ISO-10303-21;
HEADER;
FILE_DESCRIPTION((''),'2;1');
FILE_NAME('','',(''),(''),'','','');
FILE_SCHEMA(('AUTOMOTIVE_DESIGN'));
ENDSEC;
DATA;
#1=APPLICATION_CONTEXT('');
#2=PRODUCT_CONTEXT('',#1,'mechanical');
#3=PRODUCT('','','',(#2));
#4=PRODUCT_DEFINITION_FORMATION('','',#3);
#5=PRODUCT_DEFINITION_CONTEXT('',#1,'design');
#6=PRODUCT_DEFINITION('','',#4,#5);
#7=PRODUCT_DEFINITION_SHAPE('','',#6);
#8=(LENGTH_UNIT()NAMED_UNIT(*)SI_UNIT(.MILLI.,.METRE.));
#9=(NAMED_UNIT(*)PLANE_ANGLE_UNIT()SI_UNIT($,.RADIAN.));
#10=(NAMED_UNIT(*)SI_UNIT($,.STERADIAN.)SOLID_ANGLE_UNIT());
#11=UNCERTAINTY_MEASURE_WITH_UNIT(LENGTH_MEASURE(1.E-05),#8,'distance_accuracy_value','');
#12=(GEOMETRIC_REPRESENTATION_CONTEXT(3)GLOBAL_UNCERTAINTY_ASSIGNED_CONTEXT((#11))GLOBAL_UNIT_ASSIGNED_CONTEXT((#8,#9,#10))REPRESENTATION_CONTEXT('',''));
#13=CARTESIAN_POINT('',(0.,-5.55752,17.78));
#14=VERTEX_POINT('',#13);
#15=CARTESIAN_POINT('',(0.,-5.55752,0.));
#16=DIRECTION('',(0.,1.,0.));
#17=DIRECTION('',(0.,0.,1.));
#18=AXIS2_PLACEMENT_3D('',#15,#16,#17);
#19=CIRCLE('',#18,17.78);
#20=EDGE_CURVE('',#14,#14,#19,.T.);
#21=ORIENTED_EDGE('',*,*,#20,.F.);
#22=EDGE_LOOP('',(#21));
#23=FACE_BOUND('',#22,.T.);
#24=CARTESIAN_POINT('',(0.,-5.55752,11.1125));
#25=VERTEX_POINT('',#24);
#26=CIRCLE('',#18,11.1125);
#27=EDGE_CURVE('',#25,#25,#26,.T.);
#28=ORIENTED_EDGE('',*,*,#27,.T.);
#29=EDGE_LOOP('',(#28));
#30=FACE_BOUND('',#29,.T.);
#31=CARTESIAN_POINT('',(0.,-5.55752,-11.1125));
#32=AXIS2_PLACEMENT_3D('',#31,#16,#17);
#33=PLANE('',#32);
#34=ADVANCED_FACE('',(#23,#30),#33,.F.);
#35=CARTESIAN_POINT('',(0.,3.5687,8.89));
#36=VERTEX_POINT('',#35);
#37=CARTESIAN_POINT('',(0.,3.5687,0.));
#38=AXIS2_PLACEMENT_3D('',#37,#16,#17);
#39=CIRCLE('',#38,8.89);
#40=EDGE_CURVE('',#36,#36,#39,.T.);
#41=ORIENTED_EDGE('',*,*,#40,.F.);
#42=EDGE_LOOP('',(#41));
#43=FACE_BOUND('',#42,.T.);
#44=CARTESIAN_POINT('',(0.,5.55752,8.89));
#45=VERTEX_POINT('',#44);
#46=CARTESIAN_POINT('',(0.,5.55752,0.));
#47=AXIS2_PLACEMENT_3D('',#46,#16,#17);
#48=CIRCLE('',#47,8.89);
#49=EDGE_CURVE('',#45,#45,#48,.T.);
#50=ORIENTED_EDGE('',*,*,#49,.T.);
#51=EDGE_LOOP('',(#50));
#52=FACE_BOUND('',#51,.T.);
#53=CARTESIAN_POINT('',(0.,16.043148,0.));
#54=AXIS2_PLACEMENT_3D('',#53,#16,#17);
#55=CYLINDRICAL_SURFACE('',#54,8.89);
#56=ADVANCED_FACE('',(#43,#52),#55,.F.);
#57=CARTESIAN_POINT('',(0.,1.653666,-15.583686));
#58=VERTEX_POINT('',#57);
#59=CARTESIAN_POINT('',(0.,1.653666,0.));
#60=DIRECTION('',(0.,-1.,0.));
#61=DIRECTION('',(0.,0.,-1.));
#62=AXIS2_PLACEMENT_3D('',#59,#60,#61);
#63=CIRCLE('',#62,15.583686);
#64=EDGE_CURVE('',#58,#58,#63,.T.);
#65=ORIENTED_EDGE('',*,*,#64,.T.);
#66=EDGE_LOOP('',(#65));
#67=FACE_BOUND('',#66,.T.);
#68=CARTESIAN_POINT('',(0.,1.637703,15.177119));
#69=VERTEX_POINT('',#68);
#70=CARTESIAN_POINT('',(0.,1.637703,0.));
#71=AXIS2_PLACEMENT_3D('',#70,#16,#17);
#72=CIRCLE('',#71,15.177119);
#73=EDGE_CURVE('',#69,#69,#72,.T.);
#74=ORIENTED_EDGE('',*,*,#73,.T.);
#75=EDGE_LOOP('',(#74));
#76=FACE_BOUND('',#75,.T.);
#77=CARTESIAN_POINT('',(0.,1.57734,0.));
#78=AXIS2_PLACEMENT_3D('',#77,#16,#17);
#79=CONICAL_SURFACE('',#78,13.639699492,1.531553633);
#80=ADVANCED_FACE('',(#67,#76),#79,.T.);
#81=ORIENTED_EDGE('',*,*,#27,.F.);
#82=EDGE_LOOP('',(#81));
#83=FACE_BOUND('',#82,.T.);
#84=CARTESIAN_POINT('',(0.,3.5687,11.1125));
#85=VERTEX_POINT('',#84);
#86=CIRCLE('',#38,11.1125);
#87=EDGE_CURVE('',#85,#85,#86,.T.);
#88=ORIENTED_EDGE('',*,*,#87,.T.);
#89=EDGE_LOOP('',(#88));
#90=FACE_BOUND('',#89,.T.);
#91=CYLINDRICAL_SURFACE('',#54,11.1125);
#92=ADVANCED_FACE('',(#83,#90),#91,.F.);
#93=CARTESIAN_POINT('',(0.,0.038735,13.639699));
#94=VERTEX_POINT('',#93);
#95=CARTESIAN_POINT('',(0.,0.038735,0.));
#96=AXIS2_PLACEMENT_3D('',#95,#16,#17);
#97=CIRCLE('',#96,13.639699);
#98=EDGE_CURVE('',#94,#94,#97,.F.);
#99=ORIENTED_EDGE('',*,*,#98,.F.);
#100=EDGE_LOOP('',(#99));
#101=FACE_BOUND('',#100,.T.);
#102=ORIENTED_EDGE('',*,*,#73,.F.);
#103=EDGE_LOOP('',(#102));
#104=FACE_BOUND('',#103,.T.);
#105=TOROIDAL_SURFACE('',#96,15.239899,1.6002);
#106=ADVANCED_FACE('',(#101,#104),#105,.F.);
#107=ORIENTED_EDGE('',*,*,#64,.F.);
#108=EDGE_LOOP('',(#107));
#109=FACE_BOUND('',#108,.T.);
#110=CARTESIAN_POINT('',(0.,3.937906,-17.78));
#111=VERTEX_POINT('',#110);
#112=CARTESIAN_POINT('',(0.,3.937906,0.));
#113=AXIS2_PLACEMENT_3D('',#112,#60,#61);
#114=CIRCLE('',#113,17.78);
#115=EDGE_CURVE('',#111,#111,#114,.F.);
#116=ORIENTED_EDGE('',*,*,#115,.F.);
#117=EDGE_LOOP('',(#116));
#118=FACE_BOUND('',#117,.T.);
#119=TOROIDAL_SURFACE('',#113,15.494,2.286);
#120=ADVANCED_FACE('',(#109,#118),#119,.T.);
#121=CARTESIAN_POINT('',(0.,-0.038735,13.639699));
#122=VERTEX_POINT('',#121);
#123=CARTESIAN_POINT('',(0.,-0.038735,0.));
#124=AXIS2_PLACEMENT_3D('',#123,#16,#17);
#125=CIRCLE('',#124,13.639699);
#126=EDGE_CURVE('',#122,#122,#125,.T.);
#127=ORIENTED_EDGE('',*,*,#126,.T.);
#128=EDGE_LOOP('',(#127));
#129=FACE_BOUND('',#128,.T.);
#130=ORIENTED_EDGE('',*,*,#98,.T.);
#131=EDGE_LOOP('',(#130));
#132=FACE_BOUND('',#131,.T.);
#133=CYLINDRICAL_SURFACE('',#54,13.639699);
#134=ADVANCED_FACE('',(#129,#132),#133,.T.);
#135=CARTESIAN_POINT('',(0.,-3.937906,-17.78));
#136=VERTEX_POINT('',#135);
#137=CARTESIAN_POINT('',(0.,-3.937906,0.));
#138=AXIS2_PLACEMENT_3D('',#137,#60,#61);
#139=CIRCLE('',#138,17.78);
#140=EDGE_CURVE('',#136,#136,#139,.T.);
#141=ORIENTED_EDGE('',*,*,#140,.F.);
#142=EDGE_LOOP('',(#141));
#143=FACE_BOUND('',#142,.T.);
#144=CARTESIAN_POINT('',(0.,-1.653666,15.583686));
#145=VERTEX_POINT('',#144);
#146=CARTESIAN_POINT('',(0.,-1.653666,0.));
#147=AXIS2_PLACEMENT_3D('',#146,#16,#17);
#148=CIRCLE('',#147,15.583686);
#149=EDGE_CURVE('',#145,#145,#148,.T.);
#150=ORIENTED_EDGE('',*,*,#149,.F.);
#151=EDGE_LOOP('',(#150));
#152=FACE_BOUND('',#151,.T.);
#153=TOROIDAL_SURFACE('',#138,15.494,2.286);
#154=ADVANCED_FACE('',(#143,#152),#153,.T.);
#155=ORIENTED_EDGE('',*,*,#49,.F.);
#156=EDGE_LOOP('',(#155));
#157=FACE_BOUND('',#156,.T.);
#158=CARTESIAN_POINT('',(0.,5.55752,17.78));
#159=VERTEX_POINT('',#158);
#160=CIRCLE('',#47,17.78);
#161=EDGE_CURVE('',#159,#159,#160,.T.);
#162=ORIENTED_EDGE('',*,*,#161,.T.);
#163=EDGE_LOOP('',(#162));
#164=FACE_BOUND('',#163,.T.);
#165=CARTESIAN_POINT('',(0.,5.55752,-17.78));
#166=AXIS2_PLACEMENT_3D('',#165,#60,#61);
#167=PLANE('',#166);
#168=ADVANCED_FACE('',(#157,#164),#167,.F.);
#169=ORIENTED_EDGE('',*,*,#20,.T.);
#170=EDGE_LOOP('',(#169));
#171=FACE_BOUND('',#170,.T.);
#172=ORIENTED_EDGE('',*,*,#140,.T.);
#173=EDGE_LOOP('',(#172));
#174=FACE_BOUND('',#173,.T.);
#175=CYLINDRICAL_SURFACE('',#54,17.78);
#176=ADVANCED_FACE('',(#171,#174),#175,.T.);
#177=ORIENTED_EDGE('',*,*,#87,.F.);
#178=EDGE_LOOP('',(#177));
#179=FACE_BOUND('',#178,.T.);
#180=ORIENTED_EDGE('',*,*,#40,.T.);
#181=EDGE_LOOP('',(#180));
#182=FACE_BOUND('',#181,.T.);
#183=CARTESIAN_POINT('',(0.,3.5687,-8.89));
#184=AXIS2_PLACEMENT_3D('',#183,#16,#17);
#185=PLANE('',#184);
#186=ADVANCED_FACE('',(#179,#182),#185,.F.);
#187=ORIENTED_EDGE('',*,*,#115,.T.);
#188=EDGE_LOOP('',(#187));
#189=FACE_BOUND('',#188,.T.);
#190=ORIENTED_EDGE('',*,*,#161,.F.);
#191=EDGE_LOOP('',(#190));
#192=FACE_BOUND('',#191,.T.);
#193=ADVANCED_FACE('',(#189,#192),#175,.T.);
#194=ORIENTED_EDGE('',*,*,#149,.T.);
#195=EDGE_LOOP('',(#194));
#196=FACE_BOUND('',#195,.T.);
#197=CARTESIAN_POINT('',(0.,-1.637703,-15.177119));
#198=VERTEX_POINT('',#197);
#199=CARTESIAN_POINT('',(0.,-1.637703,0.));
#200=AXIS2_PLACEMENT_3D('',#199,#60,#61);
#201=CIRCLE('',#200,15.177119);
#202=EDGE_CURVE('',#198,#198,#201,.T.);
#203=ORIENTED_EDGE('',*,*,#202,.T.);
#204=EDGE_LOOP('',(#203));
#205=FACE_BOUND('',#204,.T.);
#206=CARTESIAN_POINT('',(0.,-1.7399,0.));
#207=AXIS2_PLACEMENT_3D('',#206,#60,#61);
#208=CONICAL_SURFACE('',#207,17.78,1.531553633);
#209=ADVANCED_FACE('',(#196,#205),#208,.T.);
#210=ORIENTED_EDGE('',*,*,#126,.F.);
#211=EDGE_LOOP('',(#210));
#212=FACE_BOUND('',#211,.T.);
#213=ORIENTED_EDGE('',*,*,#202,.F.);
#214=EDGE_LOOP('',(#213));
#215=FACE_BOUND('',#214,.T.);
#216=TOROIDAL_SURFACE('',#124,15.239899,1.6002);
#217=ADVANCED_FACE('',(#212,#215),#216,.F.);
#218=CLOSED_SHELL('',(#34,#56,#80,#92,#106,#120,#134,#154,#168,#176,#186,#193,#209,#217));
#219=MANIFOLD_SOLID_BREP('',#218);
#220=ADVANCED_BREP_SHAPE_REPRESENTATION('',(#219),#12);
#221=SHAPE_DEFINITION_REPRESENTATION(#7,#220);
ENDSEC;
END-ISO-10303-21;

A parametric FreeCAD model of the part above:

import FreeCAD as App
import Part
import Sketcher
Q = App.Units.Quantity


def edges_at(feature, points):
    """Names of the edges that pass closest to the given points."""
    edges = feature.Shape.Edges
    near = lambda p: min(range(len(edges)), key=lambda i: edges[i].distToShape(Part.Vertex(*p))[0])
    return sorted({f"Edge{near(p) + 1}" for p in points})

doc = App.newDocument("Part")
body = doc.addObject("PartDesign::Body", "Body")

sketch1 = doc.addObject("Sketcher::SketchObject", "Sketch")
body.addObject(sketch1)
sketch1.AttachmentSupport = (doc.YZ_Plane, [""])
sketch1.MapMode = "FlatFace"
sketch1.addGeometry(Part.LineSegment(App.Vector(5.6, -8.9, 0), App.Vector(3.6, -8.9, 0)), False)
sketch1.addGeometry(Part.LineSegment(App.Vector(3.6, -8.9, 0), App.Vector(3.6, -11.1, 0)), False)
sketch1.addGeometry(Part.LineSegment(App.Vector(3.6, -11.1, 0), App.Vector(-5.6, -11.1, 0)), False)
sketch1.addGeometry(Part.LineSegment(App.Vector(-5.6, -11.1, 0), App.Vector(-5.6, -17.8, 0)), False)
sketch1.addGeometry(Part.LineSegment(App.Vector(-5.6, -17.8, 0), App.Vector(-1.7, -17.8, 0)), False)
sketch1.addGeometry(Part.LineSegment(App.Vector(-1.7, -17.8, 0), App.Vector(-1.6, -13.6, 0)), False)
sketch1.addGeometry(Part.LineSegment(App.Vector(-1.6, -13.6, 0), App.Vector(1.6, -13.6, 0)), False)
sketch1.addGeometry(Part.LineSegment(App.Vector(1.6, -13.6, 0), App.Vector(1.7, -17.8, 0)), False)
sketch1.addGeometry(Part.LineSegment(App.Vector(1.7, -17.8, 0), App.Vector(5.6, -17.8, 0)), False)
sketch1.addGeometry(Part.LineSegment(App.Vector(5.6, -17.8, 0), App.Vector(5.6, -8.9, 0)), False)
sketch1.addConstraint(Sketcher.Constraint("Coincident", 0, 2, 1, 1))
sketch1.addConstraint(Sketcher.Constraint("Coincident", 1, 2, 2, 1))
sketch1.addConstraint(Sketcher.Constraint("Coincident", 2, 2, 3, 1))
sketch1.addConstraint(Sketcher.Constraint("Coincident", 3, 2, 4, 1))
sketch1.addConstraint(Sketcher.Constraint("Coincident", 4, 2, 5, 1))
sketch1.addConstraint(Sketcher.Constraint("Coincident", 5, 2, 6, 1))
sketch1.addConstraint(Sketcher.Constraint("Coincident", 6, 2, 7, 1))
sketch1.addConstraint(Sketcher.Constraint("Coincident", 7, 2, 8, 1))
sketch1.addConstraint(Sketcher.Constraint("Coincident", 8, 2, 9, 1))
sketch1.addConstraint(Sketcher.Constraint("Coincident", 9, 2, 0, 1))
sketch1.addConstraint(Sketcher.Constraint("Horizontal", 0))
sketch1.addConstraint(Sketcher.Constraint("Vertical", 1))
sketch1.addConstraint(Sketcher.Constraint("Horizontal", 2))
sketch1.addConstraint(Sketcher.Constraint("Vertical", 3))
sketch1.addConstraint(Sketcher.Constraint("Horizontal", 4))
sketch1.addConstraint(Sketcher.Constraint("Horizontal", 6))
sketch1.addConstraint(Sketcher.Constraint("Horizontal", 8))
sketch1.addConstraint(Sketcher.Constraint("Vertical", 9))
sketch1.addConstraint(Sketcher.Constraint("Symmetric", 4, 2, 7, 2, -2))
sketch1.addConstraint(Sketcher.Constraint("Equal", 4, 8))
sketch1.addConstraint(Sketcher.Constraint("Equal", 5, 7))
sketch1.addConstraint(Sketcher.Constraint("DistanceY", 9, 1, 9, 2, Q("0.35 in")))
sketch1.addConstraint(Sketcher.Constraint("DistanceY", 3, 2, -1, 1, Q("0.7 in")))
sketch1.addConstraint(Sketcher.Constraint("DistanceX", 0, 2, 0, 1, Q("0.0783 in")))
sketch1.addConstraint(Sketcher.Constraint("DistanceX", 2, 2, 2, 1, Q("0.3593 in")))
sketch1.addConstraint(Sketcher.Constraint("DistanceX", 4, 1, 4, 2, Q("0.1503 in")))
sketch1.addConstraint(Sketcher.Constraint("DistanceX", 6, 1, 6, 2, Q("0.1242 in")))
sketch1.addConstraint(Sketcher.Constraint("DistanceY", 1, 2, 1, 1, Q("0.0875 in")))
sketch1.addConstraint(Sketcher.Constraint("DistanceY", 5, 2, -1, 1, Q("13.639699 mm")))
revolution = doc.addObject("PartDesign::Revolution", "Revolution")
body.addObject(revolution)
revolution.Profile = sketch1
revolution.ReferenceAxis = (sketch1, ["H_Axis"])
revolution.Angle = 360
doc.recompute()

fillet = doc.addObject("PartDesign::Fillet", "Fillet")
body.addObject(fillet)
fillet.Base = (revolution, edges_at(revolution, [(0, 1.74, 17.78), (0, -1.74, 17.78)]))
fillet.Radius = Q("0.09 in")
doc.recompute()

fillet2 = doc.addObject("PartDesign::Fillet", "Fillet001")
body.addObject(fillet2)
fillet2.Base = (fillet, edges_at(fillet, [(0, 1.577, 13.64), (0, -1.577, 13.64)]))
fillet2.Radius = Q("0.063 in")

doc.recompute()
